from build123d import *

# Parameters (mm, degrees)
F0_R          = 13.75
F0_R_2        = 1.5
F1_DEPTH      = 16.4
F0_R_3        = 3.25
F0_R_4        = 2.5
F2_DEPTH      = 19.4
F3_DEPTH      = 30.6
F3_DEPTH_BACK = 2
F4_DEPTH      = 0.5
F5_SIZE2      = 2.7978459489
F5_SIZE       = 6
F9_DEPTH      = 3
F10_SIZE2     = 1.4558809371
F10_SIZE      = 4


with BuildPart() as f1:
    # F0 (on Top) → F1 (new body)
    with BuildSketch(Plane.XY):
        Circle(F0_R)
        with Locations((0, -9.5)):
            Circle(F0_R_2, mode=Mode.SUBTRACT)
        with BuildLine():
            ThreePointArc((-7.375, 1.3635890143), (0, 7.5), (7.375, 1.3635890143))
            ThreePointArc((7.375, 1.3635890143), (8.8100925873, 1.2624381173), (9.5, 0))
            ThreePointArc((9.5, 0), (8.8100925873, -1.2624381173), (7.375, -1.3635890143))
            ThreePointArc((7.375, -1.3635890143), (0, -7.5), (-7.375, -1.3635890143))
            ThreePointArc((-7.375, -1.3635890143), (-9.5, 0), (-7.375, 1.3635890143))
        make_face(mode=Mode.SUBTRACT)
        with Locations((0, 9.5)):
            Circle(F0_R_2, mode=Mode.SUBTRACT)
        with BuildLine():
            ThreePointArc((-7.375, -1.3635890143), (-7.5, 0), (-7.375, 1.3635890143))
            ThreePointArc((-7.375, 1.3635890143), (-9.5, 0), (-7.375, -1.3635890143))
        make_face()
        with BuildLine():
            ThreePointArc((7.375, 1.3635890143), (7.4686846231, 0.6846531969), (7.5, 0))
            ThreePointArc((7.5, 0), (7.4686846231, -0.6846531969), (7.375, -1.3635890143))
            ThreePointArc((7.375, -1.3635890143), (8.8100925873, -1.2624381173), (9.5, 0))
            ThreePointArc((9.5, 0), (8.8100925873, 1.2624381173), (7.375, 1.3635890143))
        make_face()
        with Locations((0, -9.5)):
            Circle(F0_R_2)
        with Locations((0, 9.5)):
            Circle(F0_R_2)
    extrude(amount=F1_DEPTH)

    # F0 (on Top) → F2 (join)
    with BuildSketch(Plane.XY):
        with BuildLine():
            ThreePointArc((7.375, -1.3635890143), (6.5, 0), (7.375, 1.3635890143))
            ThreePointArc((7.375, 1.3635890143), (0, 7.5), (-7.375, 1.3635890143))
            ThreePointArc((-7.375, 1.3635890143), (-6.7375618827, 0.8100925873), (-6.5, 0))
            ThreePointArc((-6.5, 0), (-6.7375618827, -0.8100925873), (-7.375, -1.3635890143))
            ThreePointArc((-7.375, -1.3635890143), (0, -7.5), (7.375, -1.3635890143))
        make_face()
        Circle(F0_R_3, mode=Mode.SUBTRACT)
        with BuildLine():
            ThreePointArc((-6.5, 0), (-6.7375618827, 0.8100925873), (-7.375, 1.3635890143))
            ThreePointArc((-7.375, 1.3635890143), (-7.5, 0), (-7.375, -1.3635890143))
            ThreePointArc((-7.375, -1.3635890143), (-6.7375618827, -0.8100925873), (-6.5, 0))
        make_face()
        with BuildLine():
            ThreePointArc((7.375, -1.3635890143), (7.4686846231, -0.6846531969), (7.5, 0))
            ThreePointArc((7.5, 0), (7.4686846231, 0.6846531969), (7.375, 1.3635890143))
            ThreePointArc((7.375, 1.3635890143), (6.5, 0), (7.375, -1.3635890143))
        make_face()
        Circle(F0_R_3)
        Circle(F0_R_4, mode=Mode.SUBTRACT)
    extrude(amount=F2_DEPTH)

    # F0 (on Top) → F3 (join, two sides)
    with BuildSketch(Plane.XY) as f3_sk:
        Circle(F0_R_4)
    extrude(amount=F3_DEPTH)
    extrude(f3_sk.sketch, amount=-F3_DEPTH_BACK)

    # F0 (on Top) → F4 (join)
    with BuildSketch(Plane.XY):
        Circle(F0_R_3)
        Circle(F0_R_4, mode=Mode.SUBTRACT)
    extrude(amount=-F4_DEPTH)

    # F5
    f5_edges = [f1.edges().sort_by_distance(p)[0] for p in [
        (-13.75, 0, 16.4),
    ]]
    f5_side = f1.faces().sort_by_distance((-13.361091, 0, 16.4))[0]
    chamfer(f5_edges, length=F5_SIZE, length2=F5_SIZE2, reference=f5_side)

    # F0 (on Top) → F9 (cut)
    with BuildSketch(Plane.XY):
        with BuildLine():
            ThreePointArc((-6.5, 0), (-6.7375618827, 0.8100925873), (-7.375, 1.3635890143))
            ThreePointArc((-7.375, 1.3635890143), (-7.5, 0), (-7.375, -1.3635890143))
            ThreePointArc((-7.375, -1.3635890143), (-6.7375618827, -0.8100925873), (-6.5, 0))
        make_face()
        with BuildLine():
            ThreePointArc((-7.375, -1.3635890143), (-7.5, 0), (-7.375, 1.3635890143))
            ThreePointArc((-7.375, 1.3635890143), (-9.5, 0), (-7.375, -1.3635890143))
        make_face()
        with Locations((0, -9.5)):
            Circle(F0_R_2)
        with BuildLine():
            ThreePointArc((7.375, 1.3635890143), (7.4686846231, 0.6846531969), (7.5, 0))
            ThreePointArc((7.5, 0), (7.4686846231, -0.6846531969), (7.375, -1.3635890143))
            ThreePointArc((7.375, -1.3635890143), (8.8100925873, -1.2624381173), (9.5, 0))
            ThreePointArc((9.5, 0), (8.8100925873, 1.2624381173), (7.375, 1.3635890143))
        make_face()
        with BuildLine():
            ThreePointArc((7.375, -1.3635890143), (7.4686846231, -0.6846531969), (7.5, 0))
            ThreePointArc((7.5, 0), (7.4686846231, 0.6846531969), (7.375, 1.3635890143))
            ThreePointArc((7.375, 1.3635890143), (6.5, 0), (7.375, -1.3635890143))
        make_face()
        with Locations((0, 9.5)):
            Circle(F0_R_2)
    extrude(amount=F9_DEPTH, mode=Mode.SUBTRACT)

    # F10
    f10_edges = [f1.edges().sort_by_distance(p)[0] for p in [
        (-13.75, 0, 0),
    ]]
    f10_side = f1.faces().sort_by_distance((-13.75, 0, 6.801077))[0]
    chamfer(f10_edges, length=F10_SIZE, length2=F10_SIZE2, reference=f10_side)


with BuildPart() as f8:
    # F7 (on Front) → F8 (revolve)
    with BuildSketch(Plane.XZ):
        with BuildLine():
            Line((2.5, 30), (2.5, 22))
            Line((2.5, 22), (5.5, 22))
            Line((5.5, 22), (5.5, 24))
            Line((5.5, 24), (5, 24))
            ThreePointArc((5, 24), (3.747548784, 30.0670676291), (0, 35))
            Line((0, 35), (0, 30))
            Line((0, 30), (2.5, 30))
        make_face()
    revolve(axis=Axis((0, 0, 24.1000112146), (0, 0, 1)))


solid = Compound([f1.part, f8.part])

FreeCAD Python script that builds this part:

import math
import FreeCAD as App
import Part
import Sketcher
from FreeCAD import Vector


def edges_at(feature, points):
    """Names of the edges that pass closest to the given points."""
    edges = feature.Shape.Edges
    near = lambda p: min(range(len(edges)), key=lambda i: edges[i].distToShape(Part.Vertex(*p))[0])
    return sorted({f"Edge{near(p) + 1}" for p in points})

doc = App.newDocument("Part")
body = doc.addObject("PartDesign::Body", "Body")

sketch1 = body.newObject("Sketcher::SketchObject", "Sketch")
sketch1.AttachmentSupport = (doc.getObject("XY_Plane"), [""])
sketch1.MapMode = "FlatFace"
sketch1.addGeometry([
    Part.Circle(Vector(0, 0, 0), Vector(0, 0, 1), 13.8),
    Part.ArcOfCircle(Part.Circle(Vector(0, 0, 0), Vector(0, 0, 1), 7.5), math.radians(-170), math.radians(-10)),
    Part.ArcOfCircle(Part.Circle(Vector(0, 0, 0), Vector(0, 0, 1), 7.5), math.radians(170), math.radians(190)),
    Part.ArcOfCircle(Part.Circle(Vector(0, 0, 0), Vector(0, 0, 1), 7.5), math.radians(10), math.radians(170)),
    Part.ArcOfCircle(Part.Circle(Vector(0, 0, 0), Vector(0, 0, 1), 7.5), math.radians(0), math.radians(10.48)),
    Part.ArcOfCircle(Part.Circle(Vector(0, 0, 0), Vector(0, 0, 1), 7.5), math.radians(-10.48), math.radians(0)),
], False)
sketch1.addConstraint([
    Sketcher.Constraint("Tangent", 1, 1, 2, 2),
    Sketcher.Constraint("Tangent", 2, 1, 3, 2),
    Sketcher.Constraint("Tangent", 3, 1, 4, 2),
    Sketcher.Constraint("Tangent", 4, 1, 5, 2),
    Sketcher.Constraint("Tangent", 5, 1, 1, 2),
    Sketcher.Constraint("Coincident", 0, 3, -1, 1),
    Sketcher.Constraint("Coincident", 1, 3, -1, 1),
    Sketcher.Constraint("Coincident", 3, 3, -1, 1),
    Sketcher.Constraint("PointOnObject", 4, 1, -1),
    Sketcher.Constraint("Horizontal", 2, 1, 3, 1),
    Sketcher.Constraint("Horizontal", 1, 1, 5, 1),
    Sketcher.Constraint("Vertical", 1, 1, 2, 1),
    Sketcher.Constraint("Diameter", 0, 27.5),
    Sketcher.Constraint("Radius", 1, 7.5),
    Sketcher.Constraint("DistanceX", 1, 1, -1, 1, 7.375),
])
pad1 = body.newObject("PartDesign::Pad", "Pad")
pad1.Profile = sketch1
pad1.Length = 16.4

sketch2 = body.newObject("Sketcher::SketchObject", "Sketch001")
sketch2.AttachmentSupport = (doc.getObject("XY_Plane"), [""])
sketch2.MapMode = "FlatFace"
sketch2.addGeometry([
    Part.ArcOfCircle(Part.Circle(Vector(0, 0, 0), Vector(0, 0, 1), 7.5), math.radians(10), math.radians(170)),
    Part.ArcOfCircle(Part.Circle(Vector(0, 0, 0), Vector(0, 0, 1), 7.5), math.radians(170), math.radians(190)),
    Part.ArcOfCircle(Part.Circle(Vector(0, 0, 0), Vector(0, 0, 1), 7.5), math.radians(-170), math.radians(-10)),
    Part.ArcOfCircle(Part.Circle(Vector(0, 0, 0), Vector(0, 0, 1), 7.5), math.radians(-10.48), math.radians(0)),
    Part.ArcOfCircle(Part.Circle(Vector(0, 0, 0), Vector(0, 0, 1), 7.5), math.radians(0), math.radians(10.48)),
    Part.Circle(Vector(0, 0, 0), Vector(0, 0, 1), 2.5),
], False)
sketch2.addConstraint([
    Sketcher.Constraint("Tangent", 0, 2, 1, 1),
    Sketcher.Constraint("Tangent", 1, 2, 2, 1),
    Sketcher.Constraint("Tangent", 2, 2, 3, 1),
    Sketcher.Constraint("Tangent", 3, 2, 4, 1),
    Sketcher.Constraint("Tangent", 4, 2, 0, 1),
    Sketcher.Constraint("Coincident", 0, 3, -1, 1),
    Sketcher.Constraint("Coincident", 2, 3, -1, 1),
    Sketcher.Constraint("Coincident", 5, 3, -1, 1),
    Sketcher.Constraint("PointOnObject", 3, 2, -1),
    Sketcher.Constraint("Horizontal", 1, 2, 2, 2),
    Sketcher.Constraint("Horizontal", 0, 2, 4, 2),
    Sketcher.Constraint("Vertical", 0, 2, 1, 2),
    Sketcher.Constraint("Diameter", 5, 5.0),
    Sketcher.Constraint("Radius", 0, 7.5),
    Sketcher.Constraint("DistanceX", 0, 2, -1, 1, 7.375),
])
pad2 = body.newObject("PartDesign::Pad", "Pad001")
pad2.Profile = sketch2
pad2.Length = 19.4

sketch3 = body.newObject("Sketcher::SketchObject", "Sketch002")
sketch3.AttachmentSupport = (doc.getObject("XY_Plane"), [""])
sketch3.MapMode = "FlatFace"
sketch3.addGeometry(Part.Circle(Vector(0, 0, 0), Vector(0, 0, 1), 2.5), False)
sketch3.addConstraint([
    Sketcher.Constraint("Coincident", 0, 3, -1, 1),
    Sketcher.Constraint("Diameter", 0, 5.0),
])
pad3 = body.newObject("PartDesign::Pad", "Pad002")
pad3.Profile = sketch3
pad3.Type = "TwoLengths"
pad3.Length = 30.6
pad3.Length2 = 2

sketch4 = body.newObject("Sketcher::SketchObject", "Sketch003")
sketch4.AttachmentSupport = (doc.getObject("XY_Plane"), [""])
sketch4.MapMode = "FlatFace"
sketch4.addGeometry([
    Part.Circle(Vector(0, 0, 0), Vector(0, 0, 1), 3.2),
    Part.Circle(Vector(0, 0, 0), Vector(0, 0, 1), 2.5),
], False)
sketch4.addConstraint([
    Sketcher.Constraint("Coincident", 0, 3, -1, 1),
    Sketcher.Constraint("Coincident", 1, 3, -1, 1),
    Sketcher.Constraint("Diameter", 1, 5.0),
    Sketcher.Constraint("Diameter", 0, 6.5),
])
pad4 = body.newObject("PartDesign::Pad", "Pad003")
pad4.Profile = sketch4
pad4.Length = 0.5
pad4.Reversed = True
doc.recompute()

chamfer = body.newObject("PartDesign::Chamfer", "Chamfer")
chamfer.Base = (pad4, edges_at(pad4, [(-13.75, 0, 16.4)]))
chamfer.ChamferType = "Two distances"
chamfer.Size = 6
chamfer.Size2 = 2.797846
chamfer.FlipDirection = True

sketch5 = body.newObject("Sketcher::SketchObject", "Sketch004")
sketch5.AttachmentSupport = (doc.getObject("XY_Plane"), [""])
sketch5.MapMode = "FlatFace"
sketch5.addGeometry([
    Part.ArcOfCircle(Part.Circle(Vector(-8, 0, 0), Vector(0, 0, 1), 1.5), math.radians(0), math.radians(65)),
    Part.ArcOfCircle(Part.Circle(Vector(-8, 0, 0), Vector(0, 0, 1), 1.5), math.radians(65), math.radians(295)),
    Part.ArcOfCircle(Part.Circle(Vector(-8, 0, 0), Vector(0, 0, 1), 1.5), math.radians(-65), math.radians(0)),
    Part.Circle(Vector(0, -9.5, 0), Vector(0, 0, 1), 1.5),
    Part.ArcOfCircle(Part.Circle(Vector(8, 0, 0), Vector(0, 0, 1), 1.5), math.radians(-115), math.radians(0)),
    Part.ArcOfCircle(Part.Circle(Vector(8, 0, 0), Vector(0, 0, 1), 1.5), math.radians(0), math.radians(115)),
    Part.ArcOfCircle(Part.Circle(Vector(8, 0, 0), Vector(0, 0, 1), 1.5), math.radians(115), math.radians(245)),
    Part.Circle(Vector(0, 9.5, 0), Vector(0, 0, 1), 1.5),
], False)
sketch5.addConstraint([
    Sketcher.Constraint("Tangent", 0, 2, 1, 1),
    Sketcher.Constraint("Tangent", 1, 2, 2, 1),
    Sketcher.Constraint("Tangent", 2, 2, 0, 1),
    Sketcher.Constraint("Tangent", 4, 2, 5, 1),
    Sketcher.Constraint("Tangent", 5, 2, 6, 1),
    Sketcher.Constraint("Tangent", 6, 2, 4, 1),
    Sketcher.Constraint("Equal", 2, 3),
    Sketcher.Constraint("Equal", 3, 4),
    Sketcher.Constraint("Equal", 6, 7),
    Sketcher.Constraint("Symmetric", 0, 3, 4, 3, -1, 1),
    Sketcher.Constraint("Symmetric", 3, 3, 7, 3, -1, 1),
    Sketcher.Constraint("Symmetric", 0, 2, 5, 2, -2),
    Sketcher.Constraint("PointOnObject", 3, 3, -2),
    Sketcher.Constraint("PointOnObject", 2, 2, -1),
    Sketcher.Constraint("PointOnObject", 4, 2, -1),
    Sketcher.Constraint("Horizontal", 1, 2, 6, 2),
    Sketcher.Constraint("Vertical", 0, 2, 1, 2),
    Sketcher.Constraint("Diameter", 3, 3.0),
    Sketcher.Constraint("DistanceX", 0, 3, -1, 1, 8.0),
    Sketcher.Constraint("DistanceY", 3, 3, -1, 1, 9.5),
    Sketcher.Constraint("DistanceX", 0, 2, -1, 1, 7.375),
])
pocket1 = body.newObject("PartDesign::Pocket", "Pocket")
pocket1.Profile = sketch5
pocket1.Length = 3
pocket1.Reversed = True
doc.recompute()

chamfer2 = body.newObject("PartDesign::Chamfer", "Chamfer001")
chamfer2.Base = (pocket1, edges_at(pocket1, [(-13.75, 0, 0)]))
chamfer2.ChamferType = "Two distances"
chamfer2.Size = 4
chamfer2.Size2 = 1.455881
body2 = doc.addObject("PartDesign::Body", "Body001")

sketch6 = body2.newObject("Sketcher::SketchObject", "Sketch005")
sketch6.AttachmentSupport = (doc.getObject("XZ_Plane001"), [""])
sketch6.MapMode = "FlatFace"
sketch6.addGeometry([
    Part.LineSegment(Vector(2.5, 30, 0), Vector(2.5, 22, 0)),
    Part.LineSegment(Vector(2.5, 22, 0), Vector(5.5, 22, 0)),
    Part.LineSegment(Vector(5.5, 22, 0), Vector(5.5, 24, 0)),
    Part.LineSegment(Vector(5.5, 24, 0), Vector(5, 24, 0)),
    Part.ArcOfCircle(Part.Circle(Vector(-9, 24.3, 0), Vector(0, 0, 1), 14), math.radians(-1), math.radians(50)),
    Part.LineSegment(Vector(0, 35, 0), Vector(0, 30, 0)),
    Part.LineSegment(Vector(0, 30, 0), Vector(2.5, 30, 0)),
], False)
sketch6.addConstraint([
    Sketcher.Constraint("Coincident", 0, 2, 1, 1),
    Sketcher.Constraint("Coincident", 1, 2, 2, 1),
    Sketcher.Constraint("Coincident", 2, 2, 3, 1),
    Sketcher.Constraint("Coincident", 3, 2, 4, 1),
    Sketcher.Constraint("Coincident", 4, 2, 5, 1),
    Sketcher.Constraint("Coincident", 5, 2, 6, 1),
    Sketcher.Constraint("Coincident", 6, 2, 0, 1),
    Sketcher.Constraint("Vertical", 0),
    Sketcher.Constraint("Horizontal", 1),
    Sketcher.Constraint("Vertical", 2),
    Sketcher.Constraint("Horizontal", 3),
    Sketcher.Constraint("Vertical", 5),
    Sketcher.Constraint("Horizontal", 6),
    Sketcher.Constraint("PointOnObject", 4, 2, -2),
    Sketcher.Constraint("DistanceX", 1, 1, 1, 2, 3.0),
    Sketcher.Constraint("DistanceY", 0, 2, 0, 1, 8.0),
    Sketcher.Constraint("DistanceY", 2, 1, 2, 2, 2.0),
    Sketcher.Constraint("DistanceY", 5, 2, 5, 1, 5.0),
    Sketcher.Constraint("DistanceX", 3, 2, 3, 1, 0.5),
    Sketcher.Constraint("DistanceX", 6, 1, 6, 2, 2.5),
    Sketcher.Constraint("DistanceX", 4, 3, -1, 1, 9.0),
    Sketcher.Constraint("DistanceY", -1, 1, 0, 2, 22.0),
])
revolution = body2.newObject("PartDesign::Revolution", "Revolution")
revolution.Profile = sketch6
revolution.ReferenceAxis = (sketch6, ["V_Axis"])
revolution.Angle = 360

doc.recompute()
